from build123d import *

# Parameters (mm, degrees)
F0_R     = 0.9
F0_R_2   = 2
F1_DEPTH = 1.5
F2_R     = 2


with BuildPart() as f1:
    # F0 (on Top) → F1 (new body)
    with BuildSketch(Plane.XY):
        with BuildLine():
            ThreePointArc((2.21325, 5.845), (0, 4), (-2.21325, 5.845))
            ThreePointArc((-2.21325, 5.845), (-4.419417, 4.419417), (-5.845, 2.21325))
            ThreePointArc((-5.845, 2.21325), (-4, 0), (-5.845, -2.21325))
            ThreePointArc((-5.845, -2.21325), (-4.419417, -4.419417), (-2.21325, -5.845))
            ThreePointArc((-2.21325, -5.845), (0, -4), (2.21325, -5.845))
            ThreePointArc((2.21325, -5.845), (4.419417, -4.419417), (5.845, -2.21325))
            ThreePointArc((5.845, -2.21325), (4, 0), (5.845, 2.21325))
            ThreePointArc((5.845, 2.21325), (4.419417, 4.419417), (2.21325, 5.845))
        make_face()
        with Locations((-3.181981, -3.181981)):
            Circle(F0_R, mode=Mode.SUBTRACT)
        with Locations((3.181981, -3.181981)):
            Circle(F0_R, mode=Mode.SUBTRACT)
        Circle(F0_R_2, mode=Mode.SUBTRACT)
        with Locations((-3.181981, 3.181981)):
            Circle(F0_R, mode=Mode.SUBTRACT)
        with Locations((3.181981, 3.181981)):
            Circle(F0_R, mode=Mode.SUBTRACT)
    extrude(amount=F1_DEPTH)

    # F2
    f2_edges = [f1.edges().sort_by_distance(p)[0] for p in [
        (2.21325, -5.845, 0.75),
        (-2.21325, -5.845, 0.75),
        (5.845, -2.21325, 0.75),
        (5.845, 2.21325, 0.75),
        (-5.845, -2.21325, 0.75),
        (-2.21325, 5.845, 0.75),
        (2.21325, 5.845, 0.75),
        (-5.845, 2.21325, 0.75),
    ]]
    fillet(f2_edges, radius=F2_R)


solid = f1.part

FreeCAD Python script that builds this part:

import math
import FreeCAD as App
import Part
import Sketcher
from FreeCAD import Vector
Q = App.Units.Quantity


def edges_at(feature, points):
    """Names of the edges that pass closest to the given points."""
    edges = feature.Shape.Edges
    near = lambda p: min(range(len(edges)), key=lambda i: edges[i].distToShape(Part.Vertex(*p))[0])
    return sorted({f"Edge{near(p) + 1}" for p in points})

doc = App.newDocument("Part")
body = doc.addObject("PartDesign::Body", "Body")

# Sketch on XY plane
sketch1 = body.newObject("Sketcher::SketchObject", "Sketch")
sketch1.AttachmentSupport = (doc.getObject("XY_Plane"), [""])
sketch1.MapMode = "FlatFace"
sketch1.addGeometry(Part.ArcOfCircle(Part.Circle(Vector(0, 6.3, 0), Vector(0, 0, 1), 2.3), math.radians(-170), math.radians(-10)), False)
sketch1.addGeometry(Part.ArcOfCircle(Part.Circle(Vector(0, 0, 0), Vector(0, 0, 1), 6.3), math.radians(111), math.radians(159)), False)
sketch1.addGeometry(Part.ArcOfCircle(Part.Circle(Vector(-6.3, 0, 0), Vector(0, 0, 1), 2.3), math.radians(-80), math.radians(80)), False)
sketch1.addGeometry(Part.ArcOfCircle(Part.Circle(Vector(0, 0, 0), Vector(0, 0, 1), 6.3), math.radians(-159), math.radians(-111)), False)
sketch1.addGeometry(Part.ArcOfCircle(Part.Circle(Vector(0, -6.3, 0), Vector(0, 0, 1), 2.3), math.radians(10), math.radians(170)), False)
sketch1.addGeometry(Part.ArcOfCircle(Part.Circle(Vector(0, 0, 0), Vector(0, 0, 1), 6.3), math.radians(-69), math.radians(-21)), False)
sketch1.addGeometry(Part.ArcOfCircle(Part.Circle(Vector(6.3, 0, 0), Vector(0, 0, 1), 2.3), math.radians(100), math.radians(260)), False)
sketch1.addGeometry(Part.ArcOfCircle(Part.Circle(Vector(0, 0, 0), Vector(0, 0, 1), 6.3), math.radians(21), math.radians(69)), False)
sketch1.addGeometry(Part.Circle(Vector(-3.2, -3.2, 0), Vector(0, 0, 1), 0.9), False)
sketch1.addGeometry(Part.Circle(Vector(3.2, -3.2, 0), Vector(0, 0, 1), 0.9), False)
sketch1.addGeometry(Part.Circle(Vector(0, 0, 0), Vector(0, 0, 1), 2), False)
sketch1.addGeometry(Part.Circle(Vector(-3.2, 3.2, 0), Vector(0, 0, 1), 0.9), False)
sketch1.addGeometry(Part.Circle(Vector(3.2, 3.2, 0), Vector(0, 0, 1), 0.9), False)
sketch1.addConstraint(Sketcher.Constraint("Coincident", 0, 1, 1, 1))
sketch1.addConstraint(Sketcher.Constraint("Coincident", 1, 2, 2, 2))
sketch1.addConstraint(Sketcher.Constraint("Coincident", 2, 1, 3, 1))
sketch1.addConstraint(Sketcher.Constraint("Coincident", 3, 2, 4, 2))
sketch1.addConstraint(Sketcher.Constraint("Coincident", 4, 1, 5, 1))
sketch1.addConstraint(Sketcher.Constraint("Coincident", 5, 2, 6, 2))
sketch1.addConstraint(Sketcher.Constraint("Coincident", 6, 1, 7, 1))
sketch1.addConstraint(Sketcher.Constraint("Coincident", 7, 2, 0, 2))
sketch1.addConstraint(Sketcher.Constraint("Coincident", 1, 3, -1, 1))
sketch1.addConstraint(Sketcher.Constraint("Coincident", 3, 3, -1, 1))
sketch1.addConstraint(Sketcher.Constraint("Coincident", 5, 3, -1, 1))
sketch1.addConstraint(Sketcher.Constraint("Coincident", 7, 3, -1, 1))
sketch1.addConstraint(Sketcher.Constraint("Coincident", 10, 3, -1, 1))
sketch1.addConstraint(Sketcher.Constraint("Equal", 0, 2))
sketch1.addConstraint(Sketcher.Constraint("Equal", 1, 3))
sketch1.addConstraint(Sketcher.Constraint("Equal", 2, 4))
sketch1.addConstraint(Sketcher.Constraint("Equal", 3, 5))
sketch1.addConstraint(Sketcher.Constraint("Equal", 4, 6))
sketch1.addConstraint(Sketcher.Constraint("Equal", 5, 7))
sketch1.addConstraint(Sketcher.Constraint("Equal", 8, 9))
sketch1.addConstraint(Sketcher.Constraint("Equal", 9, 11))
sketch1.addConstraint(Sketcher.Constraint("Equal", 11, 12))
sketch1.addConstraint(Sketcher.Constraint("Symmetric", 0, 3, 4, 3, -1, 1))
sketch1.addConstraint(Sketcher.Constraint("Symmetric", 2, 3, 6, 3, -1, 1))
sketch1.addConstraint(Sketcher.Constraint("Symmetric", 9, 3, 11, 3, -1, 1))
sketch1.addConstraint(Sketcher.Constraint("Symmetric", 8, 3, 12, 3, -1, 1))
sketch1.addConstraint(Sketcher.Constraint("Symmetric", 8, 3, 9, 3, -2))
sketch1.addConstraint(Sketcher.Constraint("PointOnObject", 0, 3, -2))
sketch1.addConstraint(Sketcher.Constraint("PointOnObject", 2, 3, -1))
sketch1.addConstraint(Sketcher.Constraint("Diameter", 10, Q("4 mm")))
sketch1.addConstraint(Sketcher.Constraint("Diameter", 8, Q("1.8 mm")))
sketch1.addConstraint(Sketcher.Constraint("Radius", 0, Q("2.25 mm")))
sketch1.addConstraint(Sketcher.Constraint("DistanceY", 4, 3, 0, 3, Q("12.5 mm")))
sketch1.addConstraint(Sketcher.Constraint("DistanceX", 2, 3, -1, 1, Q("6.25 mm")))
sketch1.addConstraint(Sketcher.Constraint("DistanceY", -1, 1, 0, 1, Q("5.845 mm")))
sketch1.addConstraint(Sketcher.Constraint("DistanceX", 8, 3, -1, 1, Q("3.181981 mm")))
sketch1.addConstraint(Sketcher.Constraint("DistanceY", 8, 3, -1, 1, Q("3.181981 mm")))
pad1 = body.newObject("PartDesign::Pad", "Pad")
pad1.Profile = sketch1
pad1.Length = 1.5
doc.recompute()

fillet = body.newObject("PartDesign::Fillet", "Fillet")
fillet.Base = (pad1, edges_at(pad1, [
    (2.213, -5.845, 0.75),
    (-2.213, -5.845, 0.75),
    (5.845, -2.213, 0.75),
    (5.845, 2.213, 0.75),
    (-5.845, -2.213, 0.75),
    (-2.213, 5.845, 0.75),
    (2.213, 5.845, 0.75),
    (-5.845, 2.213, 0.75),
]))
fillet.Radius = 2

doc.recompute()
